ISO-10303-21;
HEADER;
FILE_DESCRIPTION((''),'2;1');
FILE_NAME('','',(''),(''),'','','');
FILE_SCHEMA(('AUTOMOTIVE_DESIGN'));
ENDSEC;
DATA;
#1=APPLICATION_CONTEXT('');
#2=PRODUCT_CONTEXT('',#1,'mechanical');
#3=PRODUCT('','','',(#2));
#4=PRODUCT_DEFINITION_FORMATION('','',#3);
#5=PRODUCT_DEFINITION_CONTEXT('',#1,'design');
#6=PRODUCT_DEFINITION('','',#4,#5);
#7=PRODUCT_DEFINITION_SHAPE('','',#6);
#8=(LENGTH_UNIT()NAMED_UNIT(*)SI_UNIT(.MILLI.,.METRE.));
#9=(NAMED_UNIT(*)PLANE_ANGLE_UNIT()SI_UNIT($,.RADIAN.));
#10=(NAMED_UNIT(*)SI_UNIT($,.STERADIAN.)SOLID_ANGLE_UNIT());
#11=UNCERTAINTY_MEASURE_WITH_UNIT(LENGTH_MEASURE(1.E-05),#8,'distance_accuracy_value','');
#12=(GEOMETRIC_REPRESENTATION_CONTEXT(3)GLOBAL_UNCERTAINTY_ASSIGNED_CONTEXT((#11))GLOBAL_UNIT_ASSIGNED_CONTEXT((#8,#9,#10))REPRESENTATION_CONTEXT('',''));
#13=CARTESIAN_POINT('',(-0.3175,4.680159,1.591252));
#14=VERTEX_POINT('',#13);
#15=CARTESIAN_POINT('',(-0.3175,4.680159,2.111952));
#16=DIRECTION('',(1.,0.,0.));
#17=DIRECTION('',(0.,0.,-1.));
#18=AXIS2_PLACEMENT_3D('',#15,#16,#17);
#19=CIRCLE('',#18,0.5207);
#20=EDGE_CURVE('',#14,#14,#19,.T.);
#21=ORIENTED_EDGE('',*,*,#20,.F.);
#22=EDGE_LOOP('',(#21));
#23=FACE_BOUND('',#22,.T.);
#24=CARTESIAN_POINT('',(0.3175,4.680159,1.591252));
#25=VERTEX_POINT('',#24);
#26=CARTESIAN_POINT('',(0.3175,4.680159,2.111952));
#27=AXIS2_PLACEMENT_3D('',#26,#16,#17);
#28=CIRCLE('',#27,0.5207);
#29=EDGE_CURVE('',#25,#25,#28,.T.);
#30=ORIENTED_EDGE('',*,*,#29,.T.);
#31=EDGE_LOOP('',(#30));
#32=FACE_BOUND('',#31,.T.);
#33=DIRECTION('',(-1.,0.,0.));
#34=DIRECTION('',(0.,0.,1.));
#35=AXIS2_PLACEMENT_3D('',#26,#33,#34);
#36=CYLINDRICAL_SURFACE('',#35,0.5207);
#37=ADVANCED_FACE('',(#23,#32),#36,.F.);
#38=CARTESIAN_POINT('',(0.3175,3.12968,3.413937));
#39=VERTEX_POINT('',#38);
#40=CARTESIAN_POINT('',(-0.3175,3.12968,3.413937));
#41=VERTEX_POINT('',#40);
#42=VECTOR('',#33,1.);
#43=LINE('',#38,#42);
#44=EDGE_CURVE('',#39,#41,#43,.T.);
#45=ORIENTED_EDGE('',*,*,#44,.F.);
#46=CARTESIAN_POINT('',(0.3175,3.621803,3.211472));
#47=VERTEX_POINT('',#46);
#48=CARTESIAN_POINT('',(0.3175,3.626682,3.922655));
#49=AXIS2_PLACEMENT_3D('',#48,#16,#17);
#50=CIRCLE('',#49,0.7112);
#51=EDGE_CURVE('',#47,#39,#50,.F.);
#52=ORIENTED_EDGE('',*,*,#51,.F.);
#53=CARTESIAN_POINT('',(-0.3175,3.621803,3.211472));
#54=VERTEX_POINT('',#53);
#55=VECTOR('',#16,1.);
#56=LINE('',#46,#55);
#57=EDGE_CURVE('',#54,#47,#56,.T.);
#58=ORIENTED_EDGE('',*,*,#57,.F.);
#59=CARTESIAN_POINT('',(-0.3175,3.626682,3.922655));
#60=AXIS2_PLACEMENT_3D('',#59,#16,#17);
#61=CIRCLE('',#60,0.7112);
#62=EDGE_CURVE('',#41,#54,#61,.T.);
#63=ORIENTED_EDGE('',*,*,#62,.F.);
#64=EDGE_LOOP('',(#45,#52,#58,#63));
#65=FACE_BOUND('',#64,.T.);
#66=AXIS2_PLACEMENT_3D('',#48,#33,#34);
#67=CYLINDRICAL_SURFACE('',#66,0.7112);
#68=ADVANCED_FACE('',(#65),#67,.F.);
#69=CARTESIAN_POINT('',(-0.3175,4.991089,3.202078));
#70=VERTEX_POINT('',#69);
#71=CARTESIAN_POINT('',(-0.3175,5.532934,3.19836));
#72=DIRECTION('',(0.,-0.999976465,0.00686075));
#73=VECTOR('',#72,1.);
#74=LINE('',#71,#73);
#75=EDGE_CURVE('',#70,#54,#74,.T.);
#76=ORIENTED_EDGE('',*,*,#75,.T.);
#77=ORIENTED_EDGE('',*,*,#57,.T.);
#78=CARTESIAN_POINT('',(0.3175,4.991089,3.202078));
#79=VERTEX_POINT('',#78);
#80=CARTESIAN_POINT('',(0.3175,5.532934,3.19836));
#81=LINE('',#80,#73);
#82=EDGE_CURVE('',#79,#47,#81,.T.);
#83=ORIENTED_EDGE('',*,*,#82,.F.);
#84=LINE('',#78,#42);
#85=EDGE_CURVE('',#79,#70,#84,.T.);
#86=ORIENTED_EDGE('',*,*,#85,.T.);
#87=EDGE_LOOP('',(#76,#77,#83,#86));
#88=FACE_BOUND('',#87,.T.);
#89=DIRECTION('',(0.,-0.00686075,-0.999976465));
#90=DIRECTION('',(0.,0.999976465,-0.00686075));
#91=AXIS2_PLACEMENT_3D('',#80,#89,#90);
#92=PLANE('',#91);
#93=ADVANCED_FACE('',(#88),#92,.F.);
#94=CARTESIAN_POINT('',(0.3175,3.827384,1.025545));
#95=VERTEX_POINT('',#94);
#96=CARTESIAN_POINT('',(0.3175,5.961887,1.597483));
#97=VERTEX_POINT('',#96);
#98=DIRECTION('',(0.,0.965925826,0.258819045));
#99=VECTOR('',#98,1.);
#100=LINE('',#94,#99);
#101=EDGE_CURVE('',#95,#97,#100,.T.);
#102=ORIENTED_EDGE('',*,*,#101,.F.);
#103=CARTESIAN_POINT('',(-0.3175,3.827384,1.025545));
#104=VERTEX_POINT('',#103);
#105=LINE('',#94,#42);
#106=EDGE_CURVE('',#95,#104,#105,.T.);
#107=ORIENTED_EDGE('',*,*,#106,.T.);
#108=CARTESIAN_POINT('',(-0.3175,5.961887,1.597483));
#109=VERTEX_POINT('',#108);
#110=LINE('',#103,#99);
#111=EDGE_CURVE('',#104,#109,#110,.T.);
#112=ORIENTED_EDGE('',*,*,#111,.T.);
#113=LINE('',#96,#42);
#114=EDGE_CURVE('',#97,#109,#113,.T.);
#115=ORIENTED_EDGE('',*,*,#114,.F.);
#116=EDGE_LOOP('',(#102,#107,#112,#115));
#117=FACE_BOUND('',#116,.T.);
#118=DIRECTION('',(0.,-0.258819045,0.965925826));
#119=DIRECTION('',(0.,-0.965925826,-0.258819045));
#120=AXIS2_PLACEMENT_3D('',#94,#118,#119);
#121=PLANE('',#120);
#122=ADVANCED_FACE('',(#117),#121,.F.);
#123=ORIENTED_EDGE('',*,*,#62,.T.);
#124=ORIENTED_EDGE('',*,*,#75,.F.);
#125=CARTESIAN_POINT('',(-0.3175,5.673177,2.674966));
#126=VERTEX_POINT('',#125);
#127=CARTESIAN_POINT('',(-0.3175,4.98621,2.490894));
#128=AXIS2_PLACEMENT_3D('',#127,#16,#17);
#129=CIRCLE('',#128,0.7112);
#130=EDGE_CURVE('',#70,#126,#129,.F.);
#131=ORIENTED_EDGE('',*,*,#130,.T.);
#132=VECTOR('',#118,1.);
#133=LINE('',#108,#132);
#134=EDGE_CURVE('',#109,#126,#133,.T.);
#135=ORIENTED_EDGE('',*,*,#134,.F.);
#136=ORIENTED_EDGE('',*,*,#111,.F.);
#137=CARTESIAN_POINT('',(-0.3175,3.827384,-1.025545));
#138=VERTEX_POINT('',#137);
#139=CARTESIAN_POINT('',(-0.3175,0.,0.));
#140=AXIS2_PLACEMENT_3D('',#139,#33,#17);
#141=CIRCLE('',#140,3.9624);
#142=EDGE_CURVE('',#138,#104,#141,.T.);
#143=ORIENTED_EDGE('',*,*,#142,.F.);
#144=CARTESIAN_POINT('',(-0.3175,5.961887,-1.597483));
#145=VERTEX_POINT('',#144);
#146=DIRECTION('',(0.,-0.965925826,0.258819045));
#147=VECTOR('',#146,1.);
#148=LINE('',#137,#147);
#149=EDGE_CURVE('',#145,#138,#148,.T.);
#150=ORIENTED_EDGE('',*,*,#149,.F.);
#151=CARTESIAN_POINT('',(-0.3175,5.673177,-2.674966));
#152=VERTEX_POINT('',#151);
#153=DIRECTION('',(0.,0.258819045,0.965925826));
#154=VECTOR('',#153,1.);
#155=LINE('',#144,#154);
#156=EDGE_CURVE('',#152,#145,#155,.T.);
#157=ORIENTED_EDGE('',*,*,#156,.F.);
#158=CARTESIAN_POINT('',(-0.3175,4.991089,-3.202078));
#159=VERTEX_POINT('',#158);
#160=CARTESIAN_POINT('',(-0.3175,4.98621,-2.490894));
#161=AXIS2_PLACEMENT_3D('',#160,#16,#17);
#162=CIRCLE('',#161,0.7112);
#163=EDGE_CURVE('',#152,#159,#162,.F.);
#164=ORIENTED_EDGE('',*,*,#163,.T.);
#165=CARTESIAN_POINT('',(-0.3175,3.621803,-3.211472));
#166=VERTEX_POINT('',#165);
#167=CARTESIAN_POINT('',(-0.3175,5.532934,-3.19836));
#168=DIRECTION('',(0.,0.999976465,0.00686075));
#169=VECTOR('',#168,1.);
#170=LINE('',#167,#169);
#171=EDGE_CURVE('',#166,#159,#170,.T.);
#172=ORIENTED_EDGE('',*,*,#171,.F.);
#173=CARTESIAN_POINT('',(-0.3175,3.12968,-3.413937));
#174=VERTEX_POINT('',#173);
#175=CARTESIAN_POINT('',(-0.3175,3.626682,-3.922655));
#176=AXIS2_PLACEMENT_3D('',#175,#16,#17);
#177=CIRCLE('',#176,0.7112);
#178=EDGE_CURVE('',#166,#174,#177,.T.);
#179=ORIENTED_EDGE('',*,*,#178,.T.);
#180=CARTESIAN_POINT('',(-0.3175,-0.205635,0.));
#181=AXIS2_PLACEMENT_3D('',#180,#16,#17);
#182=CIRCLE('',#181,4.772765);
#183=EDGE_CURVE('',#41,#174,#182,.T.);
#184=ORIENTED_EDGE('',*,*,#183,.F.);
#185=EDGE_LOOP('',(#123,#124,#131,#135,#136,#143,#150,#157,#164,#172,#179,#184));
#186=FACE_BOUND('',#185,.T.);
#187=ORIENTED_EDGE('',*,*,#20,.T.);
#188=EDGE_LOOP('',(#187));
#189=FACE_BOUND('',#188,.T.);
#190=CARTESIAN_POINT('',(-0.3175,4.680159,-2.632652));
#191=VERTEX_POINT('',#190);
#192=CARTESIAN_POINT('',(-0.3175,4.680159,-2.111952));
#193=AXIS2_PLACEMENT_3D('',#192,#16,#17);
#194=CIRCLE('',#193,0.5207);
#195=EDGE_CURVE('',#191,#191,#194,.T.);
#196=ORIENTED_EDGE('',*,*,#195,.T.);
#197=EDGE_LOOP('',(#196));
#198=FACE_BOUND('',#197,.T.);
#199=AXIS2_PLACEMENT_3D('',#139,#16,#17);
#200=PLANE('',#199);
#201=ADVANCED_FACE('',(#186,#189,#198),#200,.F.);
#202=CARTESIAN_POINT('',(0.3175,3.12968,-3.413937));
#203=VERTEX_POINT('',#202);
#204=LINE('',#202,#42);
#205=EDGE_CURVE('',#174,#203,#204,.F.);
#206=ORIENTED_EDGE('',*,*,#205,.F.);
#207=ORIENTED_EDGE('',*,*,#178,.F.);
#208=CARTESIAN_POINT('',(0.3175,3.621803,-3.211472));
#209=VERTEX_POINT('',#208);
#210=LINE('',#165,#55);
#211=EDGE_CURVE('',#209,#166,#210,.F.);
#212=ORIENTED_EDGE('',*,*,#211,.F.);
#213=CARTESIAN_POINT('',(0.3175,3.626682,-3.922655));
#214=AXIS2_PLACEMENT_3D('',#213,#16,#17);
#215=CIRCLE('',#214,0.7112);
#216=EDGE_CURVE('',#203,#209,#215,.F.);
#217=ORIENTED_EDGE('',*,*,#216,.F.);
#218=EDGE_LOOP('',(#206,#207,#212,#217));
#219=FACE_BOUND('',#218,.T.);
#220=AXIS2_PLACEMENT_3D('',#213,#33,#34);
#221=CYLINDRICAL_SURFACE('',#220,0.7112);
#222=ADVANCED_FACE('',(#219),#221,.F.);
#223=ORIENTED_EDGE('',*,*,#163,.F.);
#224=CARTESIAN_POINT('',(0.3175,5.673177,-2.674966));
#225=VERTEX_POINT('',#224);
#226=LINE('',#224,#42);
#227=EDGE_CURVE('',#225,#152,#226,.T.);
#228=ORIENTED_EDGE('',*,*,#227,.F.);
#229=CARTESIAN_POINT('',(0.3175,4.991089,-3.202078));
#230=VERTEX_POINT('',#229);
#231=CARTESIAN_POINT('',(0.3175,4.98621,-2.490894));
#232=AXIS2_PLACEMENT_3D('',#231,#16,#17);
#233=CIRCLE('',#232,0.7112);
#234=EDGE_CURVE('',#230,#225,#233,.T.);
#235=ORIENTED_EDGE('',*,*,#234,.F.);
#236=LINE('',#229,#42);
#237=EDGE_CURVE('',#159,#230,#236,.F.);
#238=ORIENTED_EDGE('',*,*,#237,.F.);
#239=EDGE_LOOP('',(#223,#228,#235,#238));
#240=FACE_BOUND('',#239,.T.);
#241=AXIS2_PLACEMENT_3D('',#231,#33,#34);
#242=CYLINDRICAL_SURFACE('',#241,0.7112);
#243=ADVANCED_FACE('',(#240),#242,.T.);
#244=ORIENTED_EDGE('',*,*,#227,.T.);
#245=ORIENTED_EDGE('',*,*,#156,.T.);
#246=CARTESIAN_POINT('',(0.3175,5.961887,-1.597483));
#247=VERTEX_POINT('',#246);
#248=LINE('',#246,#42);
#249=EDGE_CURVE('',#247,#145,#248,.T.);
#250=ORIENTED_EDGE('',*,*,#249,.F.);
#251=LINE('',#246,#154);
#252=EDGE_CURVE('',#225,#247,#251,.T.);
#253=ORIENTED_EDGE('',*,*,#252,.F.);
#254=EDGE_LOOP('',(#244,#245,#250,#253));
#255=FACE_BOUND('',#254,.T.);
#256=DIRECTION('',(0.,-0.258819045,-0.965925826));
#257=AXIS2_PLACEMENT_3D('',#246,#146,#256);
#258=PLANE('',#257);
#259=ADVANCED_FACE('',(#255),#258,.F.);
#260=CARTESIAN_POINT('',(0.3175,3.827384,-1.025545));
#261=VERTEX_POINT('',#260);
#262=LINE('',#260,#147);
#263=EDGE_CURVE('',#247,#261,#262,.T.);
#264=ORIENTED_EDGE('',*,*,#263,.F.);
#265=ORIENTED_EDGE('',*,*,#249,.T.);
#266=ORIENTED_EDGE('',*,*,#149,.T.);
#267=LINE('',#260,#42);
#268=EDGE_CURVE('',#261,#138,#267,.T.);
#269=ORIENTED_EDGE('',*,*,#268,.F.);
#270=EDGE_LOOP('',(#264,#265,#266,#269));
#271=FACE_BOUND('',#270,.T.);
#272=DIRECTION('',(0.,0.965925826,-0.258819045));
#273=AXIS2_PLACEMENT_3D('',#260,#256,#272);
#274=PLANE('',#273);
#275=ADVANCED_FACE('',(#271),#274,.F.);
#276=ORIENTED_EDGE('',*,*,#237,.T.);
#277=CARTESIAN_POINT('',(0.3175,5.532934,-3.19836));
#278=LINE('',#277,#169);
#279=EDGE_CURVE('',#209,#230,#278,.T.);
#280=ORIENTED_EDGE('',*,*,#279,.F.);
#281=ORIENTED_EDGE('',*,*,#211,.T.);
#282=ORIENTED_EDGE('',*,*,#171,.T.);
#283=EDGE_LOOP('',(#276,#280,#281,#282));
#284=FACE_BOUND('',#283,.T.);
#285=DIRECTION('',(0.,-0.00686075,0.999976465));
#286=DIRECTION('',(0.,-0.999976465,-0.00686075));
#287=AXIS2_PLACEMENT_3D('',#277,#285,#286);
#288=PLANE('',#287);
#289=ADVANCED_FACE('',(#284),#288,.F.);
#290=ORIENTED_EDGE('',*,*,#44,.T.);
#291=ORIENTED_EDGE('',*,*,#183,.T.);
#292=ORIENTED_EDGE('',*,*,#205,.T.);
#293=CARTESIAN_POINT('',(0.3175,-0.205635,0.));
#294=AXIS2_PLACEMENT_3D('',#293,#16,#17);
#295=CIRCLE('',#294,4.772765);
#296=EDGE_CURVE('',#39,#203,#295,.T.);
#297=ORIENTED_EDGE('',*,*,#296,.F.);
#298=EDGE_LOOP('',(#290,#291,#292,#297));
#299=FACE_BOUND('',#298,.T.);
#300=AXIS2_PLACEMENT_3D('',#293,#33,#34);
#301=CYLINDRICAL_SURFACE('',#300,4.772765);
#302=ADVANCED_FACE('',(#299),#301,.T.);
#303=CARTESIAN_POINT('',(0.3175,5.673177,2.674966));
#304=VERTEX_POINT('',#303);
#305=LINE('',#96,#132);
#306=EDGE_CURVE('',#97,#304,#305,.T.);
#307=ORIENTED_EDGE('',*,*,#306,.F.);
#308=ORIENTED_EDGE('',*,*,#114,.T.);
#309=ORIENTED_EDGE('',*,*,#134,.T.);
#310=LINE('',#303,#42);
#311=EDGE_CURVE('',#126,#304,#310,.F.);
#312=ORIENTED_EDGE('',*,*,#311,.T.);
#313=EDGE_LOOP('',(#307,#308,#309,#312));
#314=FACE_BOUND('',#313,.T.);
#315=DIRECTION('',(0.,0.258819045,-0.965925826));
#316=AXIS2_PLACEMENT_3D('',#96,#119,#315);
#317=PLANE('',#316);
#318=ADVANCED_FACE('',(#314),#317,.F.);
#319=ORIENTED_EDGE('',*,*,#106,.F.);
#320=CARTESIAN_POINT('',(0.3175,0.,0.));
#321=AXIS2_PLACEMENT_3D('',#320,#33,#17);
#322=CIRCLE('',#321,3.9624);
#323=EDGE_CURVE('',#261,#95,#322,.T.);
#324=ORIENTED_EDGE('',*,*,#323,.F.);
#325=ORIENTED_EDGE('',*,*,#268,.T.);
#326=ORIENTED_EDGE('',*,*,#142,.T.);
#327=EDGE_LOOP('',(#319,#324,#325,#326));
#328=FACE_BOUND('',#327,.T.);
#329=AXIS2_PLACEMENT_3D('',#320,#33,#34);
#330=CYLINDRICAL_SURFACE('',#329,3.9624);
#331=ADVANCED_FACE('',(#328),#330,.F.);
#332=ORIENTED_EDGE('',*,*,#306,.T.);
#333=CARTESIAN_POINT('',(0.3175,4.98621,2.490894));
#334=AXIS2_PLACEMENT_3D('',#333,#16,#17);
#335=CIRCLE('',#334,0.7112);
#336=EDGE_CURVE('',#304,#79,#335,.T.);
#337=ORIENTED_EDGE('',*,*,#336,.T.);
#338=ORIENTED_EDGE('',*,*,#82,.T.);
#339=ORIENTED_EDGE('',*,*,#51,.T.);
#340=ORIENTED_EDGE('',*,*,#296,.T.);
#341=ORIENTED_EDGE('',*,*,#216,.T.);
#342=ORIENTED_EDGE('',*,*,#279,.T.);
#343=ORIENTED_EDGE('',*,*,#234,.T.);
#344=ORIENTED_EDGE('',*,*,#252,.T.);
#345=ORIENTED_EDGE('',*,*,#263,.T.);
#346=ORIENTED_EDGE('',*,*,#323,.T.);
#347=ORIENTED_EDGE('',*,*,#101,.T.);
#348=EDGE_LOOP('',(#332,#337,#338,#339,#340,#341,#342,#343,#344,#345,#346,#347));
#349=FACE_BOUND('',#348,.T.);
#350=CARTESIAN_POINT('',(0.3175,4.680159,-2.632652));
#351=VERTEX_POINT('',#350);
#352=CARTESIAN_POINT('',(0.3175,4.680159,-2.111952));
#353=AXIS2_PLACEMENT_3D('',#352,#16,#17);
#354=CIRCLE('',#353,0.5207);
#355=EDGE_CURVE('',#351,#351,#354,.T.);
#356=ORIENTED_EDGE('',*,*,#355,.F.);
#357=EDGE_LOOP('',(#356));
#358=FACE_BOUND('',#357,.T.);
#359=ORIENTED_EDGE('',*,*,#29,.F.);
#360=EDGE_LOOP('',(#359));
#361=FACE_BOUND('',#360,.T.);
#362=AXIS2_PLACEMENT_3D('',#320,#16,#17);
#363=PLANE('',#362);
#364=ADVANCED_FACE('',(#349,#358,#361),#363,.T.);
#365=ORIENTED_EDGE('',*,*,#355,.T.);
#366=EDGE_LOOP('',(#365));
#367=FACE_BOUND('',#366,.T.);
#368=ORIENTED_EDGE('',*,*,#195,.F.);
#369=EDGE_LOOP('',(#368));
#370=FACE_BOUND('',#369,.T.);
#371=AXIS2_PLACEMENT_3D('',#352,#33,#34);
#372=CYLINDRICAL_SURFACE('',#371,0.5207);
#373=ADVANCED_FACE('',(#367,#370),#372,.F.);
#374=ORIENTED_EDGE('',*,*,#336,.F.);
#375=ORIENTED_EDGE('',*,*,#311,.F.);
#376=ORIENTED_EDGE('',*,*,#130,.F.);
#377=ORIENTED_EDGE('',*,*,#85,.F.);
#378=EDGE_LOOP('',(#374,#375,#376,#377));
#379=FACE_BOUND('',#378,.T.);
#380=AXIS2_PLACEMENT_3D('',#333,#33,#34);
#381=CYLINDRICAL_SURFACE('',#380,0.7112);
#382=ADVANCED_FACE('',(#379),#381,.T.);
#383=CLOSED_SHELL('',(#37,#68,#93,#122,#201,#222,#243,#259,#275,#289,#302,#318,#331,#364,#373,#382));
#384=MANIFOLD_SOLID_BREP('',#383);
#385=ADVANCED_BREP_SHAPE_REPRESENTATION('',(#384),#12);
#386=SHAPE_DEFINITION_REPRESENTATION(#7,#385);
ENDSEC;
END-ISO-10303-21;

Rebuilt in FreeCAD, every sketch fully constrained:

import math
import FreeCAD as App
import Part
import Sketcher
Q = App.Units.Quantity


def edges_at(feature, points):
    """Names of the edges that pass closest to the given points."""
    edges = feature.Shape.Edges
    near = lambda p: min(range(len(edges)), key=lambda i: edges[i].distToShape(Part.Vertex(*p))[0])
    return sorted({f"Edge{near(p) + 1}" for p in points})

doc = App.newDocument("Part")
body = doc.addObject("PartDesign::Body", "Body")

sketch1 = doc.addObject("Sketcher::SketchObject", "Sketch")
body.addObject(sketch1)
sketch1.AttachmentSupport = (doc.YZ_Plane, [""])
sketch1.MapMode = "FlatFace"
sketch1.addGeometry(Part.LineSegment(App.Vector(3.827384, 1.025545, 0), App.Vector(5.961887, 1.597483, 0)), False)
sketch1.addGeometry(Part.LineSegment(App.Vector(5.961887, 1.597483, 0), App.Vector(5.532934, 3.19836, 0)), False)
sketch1.addGeometry(Part.LineSegment(App.Vector(5.532934, 3.19836, 0), App.Vector(3.323186, 3.213521, 0)), False)
sketch1.addGeometry(Part.ArcOfCircle(Part.Circle(App.Vector(-0.205635, 0, 0), App.Vector(0, 0, 1), 4.772765), math.radians(42.322567), math.radians(317.677433)), False)
sketch1.addGeometry(Part.LineSegment(App.Vector(3.323186, -3.213521, 0), App.Vector(5.532934, -3.19836, 0)), False)
sketch1.addGeometry(Part.LineSegment(App.Vector(5.532934, -3.19836, 0), App.Vector(5.961887, -1.597483, 0)), False)
sketch1.addGeometry(Part.LineSegment(App.Vector(5.961887, -1.597483, 0), App.Vector(3.827384, -1.025545, 0)), False)
sketch1.addGeometry(Part.ArcOfCircle(Part.Circle(App.Vector(0, 0, 0), App.Vector(0, 0, 1), 3.9624), math.radians(15), math.radians(345)), False)
sketch1.addGeometry(Part.Circle(App.Vector(4.680159, 2.111952, 0), App.Vector(0, 0, 1), 0.5207), False)
sketch1.addGeometry(Part.Circle(App.Vector(4.680159, -2.111952, 0), App.Vector(0, 0, 1), 0.5207), False)
sketch1.addConstraint(Sketcher.Constraint("Coincident", 0, 2, 1, 1))
sketch1.addConstraint(Sketcher.Constraint("Coincident", 1, 2, 2, 1))
sketch1.addConstraint(Sketcher.Constraint("Coincident", 2, 2, 3, 1))
sketch1.addConstraint(Sketcher.Constraint("Coincident", 3, 2, 4, 1))
sketch1.addConstraint(Sketcher.Constraint("Coincident", 4, 2, 5, 1))
sketch1.addConstraint(Sketcher.Constraint("Coincident", 5, 2, 6, 1))
sketch1.addConstraint(Sketcher.Constraint("Coincident", 6, 2, 7, 2))
sketch1.addConstraint(Sketcher.Constraint("Coincident", 7, 1, 0, 1))
sketch1.addConstraint(Sketcher.Constraint("Coincident", 7, 3, -1, 1))
sketch1.addConstraint(Sketcher.Constraint("PointOnObject", 3, 3, -1))
sketch1.addConstraint(Sketcher.Constraint("Diameter", 8, Q("0.041 in")))
sketch1.addConstraint(Sketcher.Constraint("Diameter", 9, Q("0.041 in")))
sketch1.addConstraint(Sketcher.Constraint("Radius", 7, Q("0.156 in")))
sketch1.addConstraint(Sketcher.Constraint("Distance", 0, Q("0.087 in")))
sketch1.addConstraint(Sketcher.Constraint("Distance", 2, Q("0.087 in")))
sketch1.addConstraint(Sketcher.Constraint("Distance", 4, Q("0.087 in")))
sketch1.addConstraint(Sketcher.Constraint("Distance", 6, Q("0.087 in")))
sketch1.addConstraint(Sketcher.Constraint("Radius", 3, 4.772765))
sketch1.addConstraint(Sketcher.Constraint("DistanceX", 2, 2, 0, 2, 2.638702))
sketch1.addConstraint(Sketcher.Constraint("DistanceX", 3, 2, 0, 2, 2.638702))
sketch1.addConstraint(Sketcher.Constraint("DistanceX", 3, 2, 5, 2, 2.638702))
sketch1.addConstraint(Sketcher.Constraint("DistanceX", 3, 2, 6, 2, 0.504199))
sketch1.addConstraint(Sketcher.Constraint("DistanceX", 2, 2, 7, 1, 0.504199))
sketch1.addConstraint(Sketcher.Constraint("Distance", 1, 1.65735))
sketch1.addConstraint(Sketcher.Constraint("Distance", 5, 1.65735))
sketch1.addConstraint(Sketcher.Constraint("DistanceX", -1, 1, 8, 3, 4.680159))
sketch1.addConstraint(Sketcher.Constraint("DistanceX", -1, 1, 9, 3, 4.680159))
sketch1.addConstraint(Sketcher.Constraint("DistanceY", -1, 1, 1, 2, 3.19836))
sketch1.addConstraint(Sketcher.Constraint("DistanceY", -1, 1, 2, 2, 3.213521))
sketch1.addConstraint(Sketcher.Constraint("DistanceY", 0, 2, 8, 3, 0.514469))
sketch1.addConstraint(Sketcher.Constraint("DistanceY", 3, 2, 9, 3, 1.101569))
pad1 = doc.addObject("PartDesign::Pad", "Pad")
body.addObject(pad1)
pad1.Profile = sketch1
pad1.Length = Q("0.025 in")
pad1.Midplane = True
doc.recompute()

fillet = doc.addObject("PartDesign::Fillet", "Fillet")
body.addObject(fillet)
fillet.Base = (pad1, edges_at(pad1, [
    (0, 5.533, -3.198),
    (0, 3.323, -3.214),
    (0, 3.323, 3.214),
    (0, 5.533, 3.198),
]))
fillet.Radius = Q("0.028 in")

doc.recompute()
